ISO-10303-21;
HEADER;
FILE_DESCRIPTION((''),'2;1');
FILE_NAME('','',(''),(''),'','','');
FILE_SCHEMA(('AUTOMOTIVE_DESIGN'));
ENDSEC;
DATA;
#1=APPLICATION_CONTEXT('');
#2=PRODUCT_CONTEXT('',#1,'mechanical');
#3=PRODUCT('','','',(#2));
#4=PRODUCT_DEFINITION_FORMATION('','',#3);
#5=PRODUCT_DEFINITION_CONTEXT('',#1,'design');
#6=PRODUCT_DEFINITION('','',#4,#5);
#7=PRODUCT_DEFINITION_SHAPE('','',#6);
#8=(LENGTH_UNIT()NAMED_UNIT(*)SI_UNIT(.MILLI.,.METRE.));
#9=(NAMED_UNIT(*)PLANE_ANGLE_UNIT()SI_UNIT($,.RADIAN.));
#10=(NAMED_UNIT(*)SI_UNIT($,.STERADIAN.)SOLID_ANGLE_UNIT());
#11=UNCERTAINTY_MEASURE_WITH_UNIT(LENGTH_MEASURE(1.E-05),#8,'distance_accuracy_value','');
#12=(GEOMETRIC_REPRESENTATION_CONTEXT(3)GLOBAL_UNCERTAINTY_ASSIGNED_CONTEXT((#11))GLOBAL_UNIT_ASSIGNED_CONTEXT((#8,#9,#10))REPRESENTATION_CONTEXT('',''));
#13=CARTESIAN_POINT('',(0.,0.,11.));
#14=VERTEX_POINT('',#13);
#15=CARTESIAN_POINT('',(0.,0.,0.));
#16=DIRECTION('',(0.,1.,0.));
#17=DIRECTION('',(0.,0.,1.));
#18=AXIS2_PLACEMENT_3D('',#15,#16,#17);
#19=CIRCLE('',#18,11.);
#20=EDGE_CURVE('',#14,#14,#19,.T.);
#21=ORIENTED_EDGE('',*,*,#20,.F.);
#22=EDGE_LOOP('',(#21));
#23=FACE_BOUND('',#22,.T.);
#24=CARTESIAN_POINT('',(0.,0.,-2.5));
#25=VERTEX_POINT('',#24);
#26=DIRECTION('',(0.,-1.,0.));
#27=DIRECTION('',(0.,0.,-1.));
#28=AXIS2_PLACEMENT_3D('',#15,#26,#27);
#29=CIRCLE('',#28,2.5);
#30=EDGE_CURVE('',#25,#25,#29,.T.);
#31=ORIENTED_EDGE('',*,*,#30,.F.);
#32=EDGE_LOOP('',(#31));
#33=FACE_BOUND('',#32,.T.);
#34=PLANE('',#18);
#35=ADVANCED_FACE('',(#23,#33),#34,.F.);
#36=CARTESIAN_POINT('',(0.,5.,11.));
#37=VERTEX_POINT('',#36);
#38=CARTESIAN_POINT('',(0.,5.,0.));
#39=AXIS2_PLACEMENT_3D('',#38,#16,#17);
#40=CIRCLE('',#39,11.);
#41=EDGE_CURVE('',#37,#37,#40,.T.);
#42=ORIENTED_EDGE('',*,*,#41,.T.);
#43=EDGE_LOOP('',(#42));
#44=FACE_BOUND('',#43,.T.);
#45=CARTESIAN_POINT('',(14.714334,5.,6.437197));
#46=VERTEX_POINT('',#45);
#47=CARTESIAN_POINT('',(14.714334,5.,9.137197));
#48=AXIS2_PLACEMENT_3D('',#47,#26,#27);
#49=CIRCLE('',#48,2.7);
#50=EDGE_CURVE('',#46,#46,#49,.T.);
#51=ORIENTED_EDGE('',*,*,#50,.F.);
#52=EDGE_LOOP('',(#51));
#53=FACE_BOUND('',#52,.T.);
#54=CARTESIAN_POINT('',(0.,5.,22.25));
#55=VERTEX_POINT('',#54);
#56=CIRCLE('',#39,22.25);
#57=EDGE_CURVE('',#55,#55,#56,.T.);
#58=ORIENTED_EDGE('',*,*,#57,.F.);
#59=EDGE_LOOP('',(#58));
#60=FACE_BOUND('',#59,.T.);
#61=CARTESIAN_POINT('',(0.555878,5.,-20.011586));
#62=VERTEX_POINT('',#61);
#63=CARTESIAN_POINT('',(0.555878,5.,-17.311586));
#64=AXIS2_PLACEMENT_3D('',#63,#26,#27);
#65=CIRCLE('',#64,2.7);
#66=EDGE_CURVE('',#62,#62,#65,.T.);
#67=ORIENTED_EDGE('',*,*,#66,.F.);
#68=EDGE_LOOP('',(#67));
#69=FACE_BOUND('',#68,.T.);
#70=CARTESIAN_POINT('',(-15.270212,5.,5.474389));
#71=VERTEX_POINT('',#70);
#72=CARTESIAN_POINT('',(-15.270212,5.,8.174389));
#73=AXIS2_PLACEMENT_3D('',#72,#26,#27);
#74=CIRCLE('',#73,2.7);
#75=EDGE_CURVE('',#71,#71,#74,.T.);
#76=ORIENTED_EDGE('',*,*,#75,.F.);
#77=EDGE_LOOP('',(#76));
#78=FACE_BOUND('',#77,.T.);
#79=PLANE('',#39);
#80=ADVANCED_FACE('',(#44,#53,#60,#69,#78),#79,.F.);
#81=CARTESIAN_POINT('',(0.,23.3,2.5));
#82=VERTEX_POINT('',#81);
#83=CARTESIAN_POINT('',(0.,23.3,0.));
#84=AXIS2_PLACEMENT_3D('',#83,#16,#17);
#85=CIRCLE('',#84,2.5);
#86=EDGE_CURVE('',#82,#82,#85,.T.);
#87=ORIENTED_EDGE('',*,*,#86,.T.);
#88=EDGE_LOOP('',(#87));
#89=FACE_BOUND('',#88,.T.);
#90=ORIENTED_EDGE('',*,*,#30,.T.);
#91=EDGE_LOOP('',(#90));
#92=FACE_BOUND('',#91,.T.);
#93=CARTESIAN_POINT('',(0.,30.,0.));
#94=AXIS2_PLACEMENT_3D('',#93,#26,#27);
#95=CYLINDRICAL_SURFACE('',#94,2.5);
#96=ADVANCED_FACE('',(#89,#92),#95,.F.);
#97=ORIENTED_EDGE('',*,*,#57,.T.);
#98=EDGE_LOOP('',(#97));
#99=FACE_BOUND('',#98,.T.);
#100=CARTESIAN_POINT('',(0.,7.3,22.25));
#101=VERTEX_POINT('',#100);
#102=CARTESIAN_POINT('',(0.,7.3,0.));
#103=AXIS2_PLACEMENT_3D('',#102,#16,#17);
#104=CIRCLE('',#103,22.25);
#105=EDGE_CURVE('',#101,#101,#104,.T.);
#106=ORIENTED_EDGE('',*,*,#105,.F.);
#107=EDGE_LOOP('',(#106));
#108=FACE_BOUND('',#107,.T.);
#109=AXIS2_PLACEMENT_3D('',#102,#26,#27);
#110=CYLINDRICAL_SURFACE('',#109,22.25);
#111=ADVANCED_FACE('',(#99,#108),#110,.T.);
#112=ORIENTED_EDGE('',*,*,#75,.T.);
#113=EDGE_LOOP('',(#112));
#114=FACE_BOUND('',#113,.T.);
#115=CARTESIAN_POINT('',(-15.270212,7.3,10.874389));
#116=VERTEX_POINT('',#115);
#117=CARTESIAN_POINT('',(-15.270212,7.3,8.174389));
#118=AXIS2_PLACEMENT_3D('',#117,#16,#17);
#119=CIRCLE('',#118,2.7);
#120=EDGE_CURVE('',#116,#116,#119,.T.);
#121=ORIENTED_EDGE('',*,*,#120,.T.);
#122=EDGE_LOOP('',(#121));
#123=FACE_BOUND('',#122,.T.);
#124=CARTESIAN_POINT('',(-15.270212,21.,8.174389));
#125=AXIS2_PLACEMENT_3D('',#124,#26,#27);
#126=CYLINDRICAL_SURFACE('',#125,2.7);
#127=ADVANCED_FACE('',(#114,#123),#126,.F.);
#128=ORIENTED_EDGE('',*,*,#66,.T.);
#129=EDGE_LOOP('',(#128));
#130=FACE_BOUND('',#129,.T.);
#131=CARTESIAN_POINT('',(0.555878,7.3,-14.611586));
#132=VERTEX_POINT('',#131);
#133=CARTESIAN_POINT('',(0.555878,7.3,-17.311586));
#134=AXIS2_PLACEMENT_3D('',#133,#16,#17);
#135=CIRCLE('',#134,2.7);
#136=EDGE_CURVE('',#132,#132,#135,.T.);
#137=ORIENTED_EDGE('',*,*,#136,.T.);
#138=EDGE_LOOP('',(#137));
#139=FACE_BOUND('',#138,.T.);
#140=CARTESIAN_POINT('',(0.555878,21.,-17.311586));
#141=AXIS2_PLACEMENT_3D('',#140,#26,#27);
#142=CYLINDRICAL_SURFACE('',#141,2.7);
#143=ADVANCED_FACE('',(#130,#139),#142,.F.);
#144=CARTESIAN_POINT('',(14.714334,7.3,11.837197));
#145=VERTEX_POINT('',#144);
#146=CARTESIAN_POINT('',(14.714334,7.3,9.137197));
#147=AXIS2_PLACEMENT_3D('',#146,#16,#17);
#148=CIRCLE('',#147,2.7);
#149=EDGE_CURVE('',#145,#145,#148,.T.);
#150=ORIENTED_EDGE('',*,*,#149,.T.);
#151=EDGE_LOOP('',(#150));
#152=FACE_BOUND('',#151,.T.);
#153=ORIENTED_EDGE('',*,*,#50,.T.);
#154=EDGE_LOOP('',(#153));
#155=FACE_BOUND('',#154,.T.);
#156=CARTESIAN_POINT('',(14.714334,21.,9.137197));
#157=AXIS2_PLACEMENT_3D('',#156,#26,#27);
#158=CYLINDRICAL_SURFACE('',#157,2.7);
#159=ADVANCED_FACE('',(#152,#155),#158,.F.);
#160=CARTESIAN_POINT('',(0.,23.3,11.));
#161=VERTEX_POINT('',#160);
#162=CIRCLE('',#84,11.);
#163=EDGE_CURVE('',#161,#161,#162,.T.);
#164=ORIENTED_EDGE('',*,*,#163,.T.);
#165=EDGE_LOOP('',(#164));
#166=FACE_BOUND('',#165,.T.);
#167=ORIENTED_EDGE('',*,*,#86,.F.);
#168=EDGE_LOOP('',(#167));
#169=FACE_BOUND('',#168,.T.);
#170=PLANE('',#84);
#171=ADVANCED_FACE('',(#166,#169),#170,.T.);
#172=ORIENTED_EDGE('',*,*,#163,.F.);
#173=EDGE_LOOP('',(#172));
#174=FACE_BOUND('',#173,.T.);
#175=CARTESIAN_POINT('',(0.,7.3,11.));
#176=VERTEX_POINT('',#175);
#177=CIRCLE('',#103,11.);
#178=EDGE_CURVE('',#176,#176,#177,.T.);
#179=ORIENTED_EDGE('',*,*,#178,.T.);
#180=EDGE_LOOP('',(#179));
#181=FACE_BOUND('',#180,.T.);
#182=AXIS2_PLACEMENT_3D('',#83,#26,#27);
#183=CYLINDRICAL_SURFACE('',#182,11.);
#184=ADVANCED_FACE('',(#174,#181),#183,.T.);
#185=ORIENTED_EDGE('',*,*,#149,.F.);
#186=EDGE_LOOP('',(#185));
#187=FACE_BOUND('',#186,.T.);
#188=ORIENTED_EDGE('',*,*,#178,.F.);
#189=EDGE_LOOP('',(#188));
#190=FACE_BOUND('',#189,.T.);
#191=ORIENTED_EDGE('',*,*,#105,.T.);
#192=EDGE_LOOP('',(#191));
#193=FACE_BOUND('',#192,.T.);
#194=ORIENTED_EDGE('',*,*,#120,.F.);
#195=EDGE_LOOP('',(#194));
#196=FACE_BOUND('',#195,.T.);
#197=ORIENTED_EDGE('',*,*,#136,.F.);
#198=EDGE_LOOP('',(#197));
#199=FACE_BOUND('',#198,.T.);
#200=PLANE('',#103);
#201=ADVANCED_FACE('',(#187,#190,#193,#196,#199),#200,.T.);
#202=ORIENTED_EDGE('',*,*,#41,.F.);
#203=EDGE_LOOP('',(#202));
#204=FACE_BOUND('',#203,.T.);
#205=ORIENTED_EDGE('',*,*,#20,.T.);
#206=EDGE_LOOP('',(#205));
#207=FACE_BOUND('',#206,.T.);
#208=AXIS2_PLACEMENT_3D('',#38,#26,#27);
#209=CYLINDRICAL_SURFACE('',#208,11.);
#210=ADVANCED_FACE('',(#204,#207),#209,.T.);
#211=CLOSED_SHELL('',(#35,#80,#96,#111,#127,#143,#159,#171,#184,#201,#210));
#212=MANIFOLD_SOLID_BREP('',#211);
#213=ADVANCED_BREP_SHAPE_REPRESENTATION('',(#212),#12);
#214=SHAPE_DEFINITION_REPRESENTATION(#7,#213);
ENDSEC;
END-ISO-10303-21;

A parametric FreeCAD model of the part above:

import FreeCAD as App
import Part
import Sketcher
from FreeCAD import Vector
Q = App.Units.Quantity

doc = App.newDocument("Part")
body = doc.addObject("PartDesign::Body", "Body")

# Sketch on XZ plane
sketch1 = doc.addObject("Sketcher::SketchObject", "Sketch")
body.addObject(sketch1)
sketch1.AttachmentSupport = (doc.XZ_Plane, [""])
sketch1.MapMode = "FlatFace"
sketch1.addGeometry(Part.Circle(Vector(0, 0, 0), Vector(0, 0, 1), 11), False)
sketch1.addConstraint([
    Sketcher.Constraint("Coincident", 0, 3, -1, 1),
    Sketcher.Constraint("Diameter", 0, Q("22 mm")),
])
pad1 = doc.addObject("PartDesign::Pad", "Pad")
body.addObject(pad1)
pad1.Profile = sketch1
pad1.Length = 5
pad1.Reversed = True

# Sketch on XZ plane
sketch2 = doc.addObject("Sketcher::SketchObject", "Sketch001")
body.addObject(sketch2)
sketch2.AttachmentSupport = (doc.XZ_Plane, [""])
sketch2.MapMode = "FlatFace"
sketch2.AttachmentOffset = App.Placement(Vector(0, 0, -5), App.Rotation())
sketch2.addGeometry(Part.Circle(Vector(0, 0, 0), Vector(0, 0, 1), 22), False)
sketch2.addConstraint([
    Sketcher.Constraint("Coincident", 0, 3, -1, 1),
    Sketcher.Constraint("Diameter", 0, Q("44.5 mm")),
])
pad2 = doc.addObject("PartDesign::Pad", "Pad001")
body.addObject(pad2)
pad2.Profile = sketch2
pad2.Length = 2.3
pad2.Reversed = True

# Sketch on XZ plane
sketch3 = doc.addObject("Sketcher::SketchObject", "Sketch002")
body.addObject(sketch3)
sketch3.AttachmentSupport = (doc.XZ_Plane, [""])
sketch3.MapMode = "FlatFace"
sketch3.AttachmentOffset = App.Placement(Vector(0, 0, -7.3), App.Rotation())
sketch3.addGeometry(Part.Circle(Vector(0, 0, 0), Vector(0, 0, 1), 11), False)
sketch3.addConstraint([
    Sketcher.Constraint("Coincident", 0, 3, -1, 1),
    Sketcher.Constraint("Diameter", 0, Q("22 mm")),
])
pad3 = doc.addObject("PartDesign::Pad", "Pad002")
body.addObject(pad3)
pad3.Profile = sketch3
pad3.Length = 16
pad3.Reversed = True

# Sketch on XZ plane
sketch4 = doc.addObject("Sketcher::SketchObject", "Sketch003")
body.addObject(sketch4)
sketch4.AttachmentSupport = (doc.XZ_Plane, [""])
sketch4.MapMode = "FlatFace"
sketch4.addGeometry(Part.Circle(Vector(0, 0, 0), Vector(0, 0, 1), 2.5), False)
sketch4.addConstraint([
    Sketcher.Constraint("Coincident", 0, 3, -1, 1),
    Sketcher.Constraint("Diameter", 0, Q("5 mm")),
])
pocket1 = doc.addObject("PartDesign::Pocket", "Pocket")
body.addObject(pocket1)
pocket1.Profile = sketch4
pocket1.Length = 30

# Sketch on XZ plane
sketch5 = doc.addObject("Sketcher::SketchObject", "Sketch004")
body.addObject(sketch5)
sketch5.AttachmentSupport = (doc.XZ_Plane, [""])
sketch5.MapMode = "FlatFace"
sketch5.AttachmentOffset = App.Placement(Vector(0, 0, -5), App.Rotation())
sketch5.addGeometry([
    Part.Circle(Vector(-15.3, 8.2, 0), Vector(0, 0, 1), 2.7),
    Part.Circle(Vector(14.7, 9.1, 0), Vector(0, 0, 1), 2.7),
    Part.Circle(Vector(0.6, -17.3, 0), Vector(0, 0, 1), 2.7),
], False)
sketch5.addConstraint([
    Sketcher.Constraint("Equal", 0, 1),
    Sketcher.Constraint("Equal", 1, 2),
    Sketcher.Constraint("Diameter", 0, Q("5.4 mm")),
    Sketcher.Constraint("DistanceX", 0, 3, -1, 1, Q("15.270212 mm")),
    Sketcher.Constraint("DistanceY", -1, 1, 0, 3, Q("8.174389 mm")),
    Sketcher.Constraint("DistanceY", 0, 3, 1, 3, Q("0.962809 mm")),
    Sketcher.Constraint("DistanceX", 0, 3, 2, 3, Q("15.82609 mm")),
    Sketcher.Constraint("DistanceX", -1, 1, 1, 3, Q("14.714334 mm")),
    Sketcher.Constraint("DistanceY", 2, 3, -1, 1, Q("17.311586 mm")),
])
pocket2 = doc.addObject("PartDesign::Pocket", "Pocket001")
body.addObject(pocket2)
pocket2.Profile = sketch5
pocket2.Length = 16

doc.recompute()
